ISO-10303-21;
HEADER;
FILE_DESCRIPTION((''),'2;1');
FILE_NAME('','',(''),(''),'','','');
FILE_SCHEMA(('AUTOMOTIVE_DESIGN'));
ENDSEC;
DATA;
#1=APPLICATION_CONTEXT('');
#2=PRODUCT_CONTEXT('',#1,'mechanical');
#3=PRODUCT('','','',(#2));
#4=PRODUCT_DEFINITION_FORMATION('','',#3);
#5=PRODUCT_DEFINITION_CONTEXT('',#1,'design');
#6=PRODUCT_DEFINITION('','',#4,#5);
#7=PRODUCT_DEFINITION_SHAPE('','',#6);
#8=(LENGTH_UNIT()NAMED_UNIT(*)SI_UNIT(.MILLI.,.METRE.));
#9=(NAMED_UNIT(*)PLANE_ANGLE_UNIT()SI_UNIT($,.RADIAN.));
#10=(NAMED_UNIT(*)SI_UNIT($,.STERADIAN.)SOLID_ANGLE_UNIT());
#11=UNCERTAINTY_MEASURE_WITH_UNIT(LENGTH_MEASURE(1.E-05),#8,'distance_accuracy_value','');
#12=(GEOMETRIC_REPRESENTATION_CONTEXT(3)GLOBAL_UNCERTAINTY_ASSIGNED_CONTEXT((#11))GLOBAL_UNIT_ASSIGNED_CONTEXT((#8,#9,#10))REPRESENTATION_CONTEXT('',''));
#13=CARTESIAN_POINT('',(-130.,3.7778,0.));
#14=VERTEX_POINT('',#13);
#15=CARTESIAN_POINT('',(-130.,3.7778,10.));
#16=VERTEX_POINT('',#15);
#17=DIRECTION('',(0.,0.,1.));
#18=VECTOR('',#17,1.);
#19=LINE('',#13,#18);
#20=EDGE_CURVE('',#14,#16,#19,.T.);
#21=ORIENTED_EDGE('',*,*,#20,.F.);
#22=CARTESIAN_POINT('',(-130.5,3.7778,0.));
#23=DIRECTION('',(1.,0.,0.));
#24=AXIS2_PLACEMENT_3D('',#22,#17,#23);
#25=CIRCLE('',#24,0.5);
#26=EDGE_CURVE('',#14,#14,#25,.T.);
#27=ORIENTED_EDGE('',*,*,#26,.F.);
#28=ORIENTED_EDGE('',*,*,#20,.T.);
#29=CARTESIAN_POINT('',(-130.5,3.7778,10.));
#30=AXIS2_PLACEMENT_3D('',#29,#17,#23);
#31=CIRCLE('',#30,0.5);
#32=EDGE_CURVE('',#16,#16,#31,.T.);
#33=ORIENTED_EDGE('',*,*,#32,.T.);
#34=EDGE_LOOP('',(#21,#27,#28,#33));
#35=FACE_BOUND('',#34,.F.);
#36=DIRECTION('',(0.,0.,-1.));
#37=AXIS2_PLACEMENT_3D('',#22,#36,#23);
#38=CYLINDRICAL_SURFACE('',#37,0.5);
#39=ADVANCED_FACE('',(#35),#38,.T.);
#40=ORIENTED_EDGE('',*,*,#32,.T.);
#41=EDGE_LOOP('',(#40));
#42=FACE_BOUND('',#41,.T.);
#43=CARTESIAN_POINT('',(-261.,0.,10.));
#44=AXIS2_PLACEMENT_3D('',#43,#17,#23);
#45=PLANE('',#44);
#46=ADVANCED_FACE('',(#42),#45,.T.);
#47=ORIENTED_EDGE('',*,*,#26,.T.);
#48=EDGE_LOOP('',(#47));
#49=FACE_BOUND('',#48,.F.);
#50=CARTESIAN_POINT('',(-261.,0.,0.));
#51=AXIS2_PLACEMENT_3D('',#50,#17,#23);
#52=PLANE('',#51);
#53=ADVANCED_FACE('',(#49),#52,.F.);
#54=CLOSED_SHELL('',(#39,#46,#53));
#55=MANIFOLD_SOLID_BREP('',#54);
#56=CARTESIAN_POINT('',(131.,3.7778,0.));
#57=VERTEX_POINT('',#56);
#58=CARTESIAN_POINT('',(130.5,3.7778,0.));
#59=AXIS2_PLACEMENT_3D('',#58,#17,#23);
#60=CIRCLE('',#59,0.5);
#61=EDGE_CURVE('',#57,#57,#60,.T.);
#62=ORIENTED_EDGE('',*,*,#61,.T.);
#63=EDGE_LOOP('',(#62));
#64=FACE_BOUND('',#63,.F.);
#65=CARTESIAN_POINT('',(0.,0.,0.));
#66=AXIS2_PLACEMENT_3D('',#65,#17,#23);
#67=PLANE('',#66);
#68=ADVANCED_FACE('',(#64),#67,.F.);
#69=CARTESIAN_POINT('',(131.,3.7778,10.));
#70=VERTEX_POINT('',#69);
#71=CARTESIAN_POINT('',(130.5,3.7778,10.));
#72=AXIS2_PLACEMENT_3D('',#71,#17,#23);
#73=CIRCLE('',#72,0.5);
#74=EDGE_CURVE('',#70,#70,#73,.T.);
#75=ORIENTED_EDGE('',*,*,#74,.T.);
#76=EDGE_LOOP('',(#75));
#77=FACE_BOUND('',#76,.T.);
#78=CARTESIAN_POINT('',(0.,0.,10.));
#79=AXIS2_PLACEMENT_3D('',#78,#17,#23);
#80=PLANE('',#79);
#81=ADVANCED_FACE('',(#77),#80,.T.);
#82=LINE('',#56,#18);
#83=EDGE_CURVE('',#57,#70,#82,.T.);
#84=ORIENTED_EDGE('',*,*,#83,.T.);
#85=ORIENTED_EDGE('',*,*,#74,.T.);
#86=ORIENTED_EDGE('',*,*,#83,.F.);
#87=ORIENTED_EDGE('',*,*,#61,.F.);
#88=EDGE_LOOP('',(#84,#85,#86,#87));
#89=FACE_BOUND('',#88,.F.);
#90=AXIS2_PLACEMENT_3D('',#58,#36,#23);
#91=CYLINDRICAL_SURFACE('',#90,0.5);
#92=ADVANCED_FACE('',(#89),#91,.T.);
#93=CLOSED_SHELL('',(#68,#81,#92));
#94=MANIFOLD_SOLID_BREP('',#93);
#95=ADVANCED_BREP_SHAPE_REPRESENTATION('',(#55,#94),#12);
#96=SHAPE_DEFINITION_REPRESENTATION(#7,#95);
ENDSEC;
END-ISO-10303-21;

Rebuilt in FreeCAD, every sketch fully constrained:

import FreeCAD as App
import Part
import Sketcher

V = App.Vector
Q = App.Units.Quantity

doc = App.newDocument("Part")
params = doc.addObject("Spreadsheet::Sheet", "Params")
for row, (alias, value) in enumerate([
    ("sketch1_diameter", "1 mm"),
    ("pad1_length", "10 mm"),
    ("linearpattern_pitch", "261 mm"),
], start=1):
    params.set(f"A{row}", alias)
    params.set(f"B{row}", "=" + value)
    params.setAlias(f"B{row}", alias)

body = doc.addObject("PartDesign::Body", "Body")
body.AllowCompound = True

# Sketch on XY plane
sketch1 = doc.addObject("Sketcher::SketchObject", "Sketch")
body.addObject(sketch1)
sketch1.AttachmentSupport = (doc.XY_Plane, [""])
sketch1.MapMode = "FlatFace"
sketch1.addGeometry(Part.Circle(V(130.5, 3.7778, 0), V(0, 0, 1), 0.5), False)
sketch1.addConstraint(Sketcher.Constraint("Diameter", 0, Q("1 mm")))
sketch1.addConstraint(Sketcher.Constraint("DistanceX", -1, 1, 0, 3, Q("130.5 mm")))
sketch1.addConstraint(Sketcher.Constraint("DistanceY", -1, 1, 0, 3, Q("3.7778 mm")))
sketch1.setExpression("Constraints[0]", "Params.sketch1_diameter")
pad1 = doc.addObject("PartDesign::Pad", "Pad")
body.addObject(pad1)
pad1.Profile = sketch1
pad1.setExpression("Length", "Params.pad1_length")
doc.recompute()

linearpattern = doc.addObject("PartDesign::LinearPattern", "LinearPattern")
body.addObject(linearpattern)
linearpattern.Originals = [pad1]
linearpattern.Direction = (doc.X_Axis, [""])
linearpattern.Mode = "offset"
linearpattern.setExpression("Offset", "Params.linearpattern_pitch")
linearpattern.Occurrences = 2
linearpattern.Reversed = True
body.Tip = linearpattern

doc.recompute()
